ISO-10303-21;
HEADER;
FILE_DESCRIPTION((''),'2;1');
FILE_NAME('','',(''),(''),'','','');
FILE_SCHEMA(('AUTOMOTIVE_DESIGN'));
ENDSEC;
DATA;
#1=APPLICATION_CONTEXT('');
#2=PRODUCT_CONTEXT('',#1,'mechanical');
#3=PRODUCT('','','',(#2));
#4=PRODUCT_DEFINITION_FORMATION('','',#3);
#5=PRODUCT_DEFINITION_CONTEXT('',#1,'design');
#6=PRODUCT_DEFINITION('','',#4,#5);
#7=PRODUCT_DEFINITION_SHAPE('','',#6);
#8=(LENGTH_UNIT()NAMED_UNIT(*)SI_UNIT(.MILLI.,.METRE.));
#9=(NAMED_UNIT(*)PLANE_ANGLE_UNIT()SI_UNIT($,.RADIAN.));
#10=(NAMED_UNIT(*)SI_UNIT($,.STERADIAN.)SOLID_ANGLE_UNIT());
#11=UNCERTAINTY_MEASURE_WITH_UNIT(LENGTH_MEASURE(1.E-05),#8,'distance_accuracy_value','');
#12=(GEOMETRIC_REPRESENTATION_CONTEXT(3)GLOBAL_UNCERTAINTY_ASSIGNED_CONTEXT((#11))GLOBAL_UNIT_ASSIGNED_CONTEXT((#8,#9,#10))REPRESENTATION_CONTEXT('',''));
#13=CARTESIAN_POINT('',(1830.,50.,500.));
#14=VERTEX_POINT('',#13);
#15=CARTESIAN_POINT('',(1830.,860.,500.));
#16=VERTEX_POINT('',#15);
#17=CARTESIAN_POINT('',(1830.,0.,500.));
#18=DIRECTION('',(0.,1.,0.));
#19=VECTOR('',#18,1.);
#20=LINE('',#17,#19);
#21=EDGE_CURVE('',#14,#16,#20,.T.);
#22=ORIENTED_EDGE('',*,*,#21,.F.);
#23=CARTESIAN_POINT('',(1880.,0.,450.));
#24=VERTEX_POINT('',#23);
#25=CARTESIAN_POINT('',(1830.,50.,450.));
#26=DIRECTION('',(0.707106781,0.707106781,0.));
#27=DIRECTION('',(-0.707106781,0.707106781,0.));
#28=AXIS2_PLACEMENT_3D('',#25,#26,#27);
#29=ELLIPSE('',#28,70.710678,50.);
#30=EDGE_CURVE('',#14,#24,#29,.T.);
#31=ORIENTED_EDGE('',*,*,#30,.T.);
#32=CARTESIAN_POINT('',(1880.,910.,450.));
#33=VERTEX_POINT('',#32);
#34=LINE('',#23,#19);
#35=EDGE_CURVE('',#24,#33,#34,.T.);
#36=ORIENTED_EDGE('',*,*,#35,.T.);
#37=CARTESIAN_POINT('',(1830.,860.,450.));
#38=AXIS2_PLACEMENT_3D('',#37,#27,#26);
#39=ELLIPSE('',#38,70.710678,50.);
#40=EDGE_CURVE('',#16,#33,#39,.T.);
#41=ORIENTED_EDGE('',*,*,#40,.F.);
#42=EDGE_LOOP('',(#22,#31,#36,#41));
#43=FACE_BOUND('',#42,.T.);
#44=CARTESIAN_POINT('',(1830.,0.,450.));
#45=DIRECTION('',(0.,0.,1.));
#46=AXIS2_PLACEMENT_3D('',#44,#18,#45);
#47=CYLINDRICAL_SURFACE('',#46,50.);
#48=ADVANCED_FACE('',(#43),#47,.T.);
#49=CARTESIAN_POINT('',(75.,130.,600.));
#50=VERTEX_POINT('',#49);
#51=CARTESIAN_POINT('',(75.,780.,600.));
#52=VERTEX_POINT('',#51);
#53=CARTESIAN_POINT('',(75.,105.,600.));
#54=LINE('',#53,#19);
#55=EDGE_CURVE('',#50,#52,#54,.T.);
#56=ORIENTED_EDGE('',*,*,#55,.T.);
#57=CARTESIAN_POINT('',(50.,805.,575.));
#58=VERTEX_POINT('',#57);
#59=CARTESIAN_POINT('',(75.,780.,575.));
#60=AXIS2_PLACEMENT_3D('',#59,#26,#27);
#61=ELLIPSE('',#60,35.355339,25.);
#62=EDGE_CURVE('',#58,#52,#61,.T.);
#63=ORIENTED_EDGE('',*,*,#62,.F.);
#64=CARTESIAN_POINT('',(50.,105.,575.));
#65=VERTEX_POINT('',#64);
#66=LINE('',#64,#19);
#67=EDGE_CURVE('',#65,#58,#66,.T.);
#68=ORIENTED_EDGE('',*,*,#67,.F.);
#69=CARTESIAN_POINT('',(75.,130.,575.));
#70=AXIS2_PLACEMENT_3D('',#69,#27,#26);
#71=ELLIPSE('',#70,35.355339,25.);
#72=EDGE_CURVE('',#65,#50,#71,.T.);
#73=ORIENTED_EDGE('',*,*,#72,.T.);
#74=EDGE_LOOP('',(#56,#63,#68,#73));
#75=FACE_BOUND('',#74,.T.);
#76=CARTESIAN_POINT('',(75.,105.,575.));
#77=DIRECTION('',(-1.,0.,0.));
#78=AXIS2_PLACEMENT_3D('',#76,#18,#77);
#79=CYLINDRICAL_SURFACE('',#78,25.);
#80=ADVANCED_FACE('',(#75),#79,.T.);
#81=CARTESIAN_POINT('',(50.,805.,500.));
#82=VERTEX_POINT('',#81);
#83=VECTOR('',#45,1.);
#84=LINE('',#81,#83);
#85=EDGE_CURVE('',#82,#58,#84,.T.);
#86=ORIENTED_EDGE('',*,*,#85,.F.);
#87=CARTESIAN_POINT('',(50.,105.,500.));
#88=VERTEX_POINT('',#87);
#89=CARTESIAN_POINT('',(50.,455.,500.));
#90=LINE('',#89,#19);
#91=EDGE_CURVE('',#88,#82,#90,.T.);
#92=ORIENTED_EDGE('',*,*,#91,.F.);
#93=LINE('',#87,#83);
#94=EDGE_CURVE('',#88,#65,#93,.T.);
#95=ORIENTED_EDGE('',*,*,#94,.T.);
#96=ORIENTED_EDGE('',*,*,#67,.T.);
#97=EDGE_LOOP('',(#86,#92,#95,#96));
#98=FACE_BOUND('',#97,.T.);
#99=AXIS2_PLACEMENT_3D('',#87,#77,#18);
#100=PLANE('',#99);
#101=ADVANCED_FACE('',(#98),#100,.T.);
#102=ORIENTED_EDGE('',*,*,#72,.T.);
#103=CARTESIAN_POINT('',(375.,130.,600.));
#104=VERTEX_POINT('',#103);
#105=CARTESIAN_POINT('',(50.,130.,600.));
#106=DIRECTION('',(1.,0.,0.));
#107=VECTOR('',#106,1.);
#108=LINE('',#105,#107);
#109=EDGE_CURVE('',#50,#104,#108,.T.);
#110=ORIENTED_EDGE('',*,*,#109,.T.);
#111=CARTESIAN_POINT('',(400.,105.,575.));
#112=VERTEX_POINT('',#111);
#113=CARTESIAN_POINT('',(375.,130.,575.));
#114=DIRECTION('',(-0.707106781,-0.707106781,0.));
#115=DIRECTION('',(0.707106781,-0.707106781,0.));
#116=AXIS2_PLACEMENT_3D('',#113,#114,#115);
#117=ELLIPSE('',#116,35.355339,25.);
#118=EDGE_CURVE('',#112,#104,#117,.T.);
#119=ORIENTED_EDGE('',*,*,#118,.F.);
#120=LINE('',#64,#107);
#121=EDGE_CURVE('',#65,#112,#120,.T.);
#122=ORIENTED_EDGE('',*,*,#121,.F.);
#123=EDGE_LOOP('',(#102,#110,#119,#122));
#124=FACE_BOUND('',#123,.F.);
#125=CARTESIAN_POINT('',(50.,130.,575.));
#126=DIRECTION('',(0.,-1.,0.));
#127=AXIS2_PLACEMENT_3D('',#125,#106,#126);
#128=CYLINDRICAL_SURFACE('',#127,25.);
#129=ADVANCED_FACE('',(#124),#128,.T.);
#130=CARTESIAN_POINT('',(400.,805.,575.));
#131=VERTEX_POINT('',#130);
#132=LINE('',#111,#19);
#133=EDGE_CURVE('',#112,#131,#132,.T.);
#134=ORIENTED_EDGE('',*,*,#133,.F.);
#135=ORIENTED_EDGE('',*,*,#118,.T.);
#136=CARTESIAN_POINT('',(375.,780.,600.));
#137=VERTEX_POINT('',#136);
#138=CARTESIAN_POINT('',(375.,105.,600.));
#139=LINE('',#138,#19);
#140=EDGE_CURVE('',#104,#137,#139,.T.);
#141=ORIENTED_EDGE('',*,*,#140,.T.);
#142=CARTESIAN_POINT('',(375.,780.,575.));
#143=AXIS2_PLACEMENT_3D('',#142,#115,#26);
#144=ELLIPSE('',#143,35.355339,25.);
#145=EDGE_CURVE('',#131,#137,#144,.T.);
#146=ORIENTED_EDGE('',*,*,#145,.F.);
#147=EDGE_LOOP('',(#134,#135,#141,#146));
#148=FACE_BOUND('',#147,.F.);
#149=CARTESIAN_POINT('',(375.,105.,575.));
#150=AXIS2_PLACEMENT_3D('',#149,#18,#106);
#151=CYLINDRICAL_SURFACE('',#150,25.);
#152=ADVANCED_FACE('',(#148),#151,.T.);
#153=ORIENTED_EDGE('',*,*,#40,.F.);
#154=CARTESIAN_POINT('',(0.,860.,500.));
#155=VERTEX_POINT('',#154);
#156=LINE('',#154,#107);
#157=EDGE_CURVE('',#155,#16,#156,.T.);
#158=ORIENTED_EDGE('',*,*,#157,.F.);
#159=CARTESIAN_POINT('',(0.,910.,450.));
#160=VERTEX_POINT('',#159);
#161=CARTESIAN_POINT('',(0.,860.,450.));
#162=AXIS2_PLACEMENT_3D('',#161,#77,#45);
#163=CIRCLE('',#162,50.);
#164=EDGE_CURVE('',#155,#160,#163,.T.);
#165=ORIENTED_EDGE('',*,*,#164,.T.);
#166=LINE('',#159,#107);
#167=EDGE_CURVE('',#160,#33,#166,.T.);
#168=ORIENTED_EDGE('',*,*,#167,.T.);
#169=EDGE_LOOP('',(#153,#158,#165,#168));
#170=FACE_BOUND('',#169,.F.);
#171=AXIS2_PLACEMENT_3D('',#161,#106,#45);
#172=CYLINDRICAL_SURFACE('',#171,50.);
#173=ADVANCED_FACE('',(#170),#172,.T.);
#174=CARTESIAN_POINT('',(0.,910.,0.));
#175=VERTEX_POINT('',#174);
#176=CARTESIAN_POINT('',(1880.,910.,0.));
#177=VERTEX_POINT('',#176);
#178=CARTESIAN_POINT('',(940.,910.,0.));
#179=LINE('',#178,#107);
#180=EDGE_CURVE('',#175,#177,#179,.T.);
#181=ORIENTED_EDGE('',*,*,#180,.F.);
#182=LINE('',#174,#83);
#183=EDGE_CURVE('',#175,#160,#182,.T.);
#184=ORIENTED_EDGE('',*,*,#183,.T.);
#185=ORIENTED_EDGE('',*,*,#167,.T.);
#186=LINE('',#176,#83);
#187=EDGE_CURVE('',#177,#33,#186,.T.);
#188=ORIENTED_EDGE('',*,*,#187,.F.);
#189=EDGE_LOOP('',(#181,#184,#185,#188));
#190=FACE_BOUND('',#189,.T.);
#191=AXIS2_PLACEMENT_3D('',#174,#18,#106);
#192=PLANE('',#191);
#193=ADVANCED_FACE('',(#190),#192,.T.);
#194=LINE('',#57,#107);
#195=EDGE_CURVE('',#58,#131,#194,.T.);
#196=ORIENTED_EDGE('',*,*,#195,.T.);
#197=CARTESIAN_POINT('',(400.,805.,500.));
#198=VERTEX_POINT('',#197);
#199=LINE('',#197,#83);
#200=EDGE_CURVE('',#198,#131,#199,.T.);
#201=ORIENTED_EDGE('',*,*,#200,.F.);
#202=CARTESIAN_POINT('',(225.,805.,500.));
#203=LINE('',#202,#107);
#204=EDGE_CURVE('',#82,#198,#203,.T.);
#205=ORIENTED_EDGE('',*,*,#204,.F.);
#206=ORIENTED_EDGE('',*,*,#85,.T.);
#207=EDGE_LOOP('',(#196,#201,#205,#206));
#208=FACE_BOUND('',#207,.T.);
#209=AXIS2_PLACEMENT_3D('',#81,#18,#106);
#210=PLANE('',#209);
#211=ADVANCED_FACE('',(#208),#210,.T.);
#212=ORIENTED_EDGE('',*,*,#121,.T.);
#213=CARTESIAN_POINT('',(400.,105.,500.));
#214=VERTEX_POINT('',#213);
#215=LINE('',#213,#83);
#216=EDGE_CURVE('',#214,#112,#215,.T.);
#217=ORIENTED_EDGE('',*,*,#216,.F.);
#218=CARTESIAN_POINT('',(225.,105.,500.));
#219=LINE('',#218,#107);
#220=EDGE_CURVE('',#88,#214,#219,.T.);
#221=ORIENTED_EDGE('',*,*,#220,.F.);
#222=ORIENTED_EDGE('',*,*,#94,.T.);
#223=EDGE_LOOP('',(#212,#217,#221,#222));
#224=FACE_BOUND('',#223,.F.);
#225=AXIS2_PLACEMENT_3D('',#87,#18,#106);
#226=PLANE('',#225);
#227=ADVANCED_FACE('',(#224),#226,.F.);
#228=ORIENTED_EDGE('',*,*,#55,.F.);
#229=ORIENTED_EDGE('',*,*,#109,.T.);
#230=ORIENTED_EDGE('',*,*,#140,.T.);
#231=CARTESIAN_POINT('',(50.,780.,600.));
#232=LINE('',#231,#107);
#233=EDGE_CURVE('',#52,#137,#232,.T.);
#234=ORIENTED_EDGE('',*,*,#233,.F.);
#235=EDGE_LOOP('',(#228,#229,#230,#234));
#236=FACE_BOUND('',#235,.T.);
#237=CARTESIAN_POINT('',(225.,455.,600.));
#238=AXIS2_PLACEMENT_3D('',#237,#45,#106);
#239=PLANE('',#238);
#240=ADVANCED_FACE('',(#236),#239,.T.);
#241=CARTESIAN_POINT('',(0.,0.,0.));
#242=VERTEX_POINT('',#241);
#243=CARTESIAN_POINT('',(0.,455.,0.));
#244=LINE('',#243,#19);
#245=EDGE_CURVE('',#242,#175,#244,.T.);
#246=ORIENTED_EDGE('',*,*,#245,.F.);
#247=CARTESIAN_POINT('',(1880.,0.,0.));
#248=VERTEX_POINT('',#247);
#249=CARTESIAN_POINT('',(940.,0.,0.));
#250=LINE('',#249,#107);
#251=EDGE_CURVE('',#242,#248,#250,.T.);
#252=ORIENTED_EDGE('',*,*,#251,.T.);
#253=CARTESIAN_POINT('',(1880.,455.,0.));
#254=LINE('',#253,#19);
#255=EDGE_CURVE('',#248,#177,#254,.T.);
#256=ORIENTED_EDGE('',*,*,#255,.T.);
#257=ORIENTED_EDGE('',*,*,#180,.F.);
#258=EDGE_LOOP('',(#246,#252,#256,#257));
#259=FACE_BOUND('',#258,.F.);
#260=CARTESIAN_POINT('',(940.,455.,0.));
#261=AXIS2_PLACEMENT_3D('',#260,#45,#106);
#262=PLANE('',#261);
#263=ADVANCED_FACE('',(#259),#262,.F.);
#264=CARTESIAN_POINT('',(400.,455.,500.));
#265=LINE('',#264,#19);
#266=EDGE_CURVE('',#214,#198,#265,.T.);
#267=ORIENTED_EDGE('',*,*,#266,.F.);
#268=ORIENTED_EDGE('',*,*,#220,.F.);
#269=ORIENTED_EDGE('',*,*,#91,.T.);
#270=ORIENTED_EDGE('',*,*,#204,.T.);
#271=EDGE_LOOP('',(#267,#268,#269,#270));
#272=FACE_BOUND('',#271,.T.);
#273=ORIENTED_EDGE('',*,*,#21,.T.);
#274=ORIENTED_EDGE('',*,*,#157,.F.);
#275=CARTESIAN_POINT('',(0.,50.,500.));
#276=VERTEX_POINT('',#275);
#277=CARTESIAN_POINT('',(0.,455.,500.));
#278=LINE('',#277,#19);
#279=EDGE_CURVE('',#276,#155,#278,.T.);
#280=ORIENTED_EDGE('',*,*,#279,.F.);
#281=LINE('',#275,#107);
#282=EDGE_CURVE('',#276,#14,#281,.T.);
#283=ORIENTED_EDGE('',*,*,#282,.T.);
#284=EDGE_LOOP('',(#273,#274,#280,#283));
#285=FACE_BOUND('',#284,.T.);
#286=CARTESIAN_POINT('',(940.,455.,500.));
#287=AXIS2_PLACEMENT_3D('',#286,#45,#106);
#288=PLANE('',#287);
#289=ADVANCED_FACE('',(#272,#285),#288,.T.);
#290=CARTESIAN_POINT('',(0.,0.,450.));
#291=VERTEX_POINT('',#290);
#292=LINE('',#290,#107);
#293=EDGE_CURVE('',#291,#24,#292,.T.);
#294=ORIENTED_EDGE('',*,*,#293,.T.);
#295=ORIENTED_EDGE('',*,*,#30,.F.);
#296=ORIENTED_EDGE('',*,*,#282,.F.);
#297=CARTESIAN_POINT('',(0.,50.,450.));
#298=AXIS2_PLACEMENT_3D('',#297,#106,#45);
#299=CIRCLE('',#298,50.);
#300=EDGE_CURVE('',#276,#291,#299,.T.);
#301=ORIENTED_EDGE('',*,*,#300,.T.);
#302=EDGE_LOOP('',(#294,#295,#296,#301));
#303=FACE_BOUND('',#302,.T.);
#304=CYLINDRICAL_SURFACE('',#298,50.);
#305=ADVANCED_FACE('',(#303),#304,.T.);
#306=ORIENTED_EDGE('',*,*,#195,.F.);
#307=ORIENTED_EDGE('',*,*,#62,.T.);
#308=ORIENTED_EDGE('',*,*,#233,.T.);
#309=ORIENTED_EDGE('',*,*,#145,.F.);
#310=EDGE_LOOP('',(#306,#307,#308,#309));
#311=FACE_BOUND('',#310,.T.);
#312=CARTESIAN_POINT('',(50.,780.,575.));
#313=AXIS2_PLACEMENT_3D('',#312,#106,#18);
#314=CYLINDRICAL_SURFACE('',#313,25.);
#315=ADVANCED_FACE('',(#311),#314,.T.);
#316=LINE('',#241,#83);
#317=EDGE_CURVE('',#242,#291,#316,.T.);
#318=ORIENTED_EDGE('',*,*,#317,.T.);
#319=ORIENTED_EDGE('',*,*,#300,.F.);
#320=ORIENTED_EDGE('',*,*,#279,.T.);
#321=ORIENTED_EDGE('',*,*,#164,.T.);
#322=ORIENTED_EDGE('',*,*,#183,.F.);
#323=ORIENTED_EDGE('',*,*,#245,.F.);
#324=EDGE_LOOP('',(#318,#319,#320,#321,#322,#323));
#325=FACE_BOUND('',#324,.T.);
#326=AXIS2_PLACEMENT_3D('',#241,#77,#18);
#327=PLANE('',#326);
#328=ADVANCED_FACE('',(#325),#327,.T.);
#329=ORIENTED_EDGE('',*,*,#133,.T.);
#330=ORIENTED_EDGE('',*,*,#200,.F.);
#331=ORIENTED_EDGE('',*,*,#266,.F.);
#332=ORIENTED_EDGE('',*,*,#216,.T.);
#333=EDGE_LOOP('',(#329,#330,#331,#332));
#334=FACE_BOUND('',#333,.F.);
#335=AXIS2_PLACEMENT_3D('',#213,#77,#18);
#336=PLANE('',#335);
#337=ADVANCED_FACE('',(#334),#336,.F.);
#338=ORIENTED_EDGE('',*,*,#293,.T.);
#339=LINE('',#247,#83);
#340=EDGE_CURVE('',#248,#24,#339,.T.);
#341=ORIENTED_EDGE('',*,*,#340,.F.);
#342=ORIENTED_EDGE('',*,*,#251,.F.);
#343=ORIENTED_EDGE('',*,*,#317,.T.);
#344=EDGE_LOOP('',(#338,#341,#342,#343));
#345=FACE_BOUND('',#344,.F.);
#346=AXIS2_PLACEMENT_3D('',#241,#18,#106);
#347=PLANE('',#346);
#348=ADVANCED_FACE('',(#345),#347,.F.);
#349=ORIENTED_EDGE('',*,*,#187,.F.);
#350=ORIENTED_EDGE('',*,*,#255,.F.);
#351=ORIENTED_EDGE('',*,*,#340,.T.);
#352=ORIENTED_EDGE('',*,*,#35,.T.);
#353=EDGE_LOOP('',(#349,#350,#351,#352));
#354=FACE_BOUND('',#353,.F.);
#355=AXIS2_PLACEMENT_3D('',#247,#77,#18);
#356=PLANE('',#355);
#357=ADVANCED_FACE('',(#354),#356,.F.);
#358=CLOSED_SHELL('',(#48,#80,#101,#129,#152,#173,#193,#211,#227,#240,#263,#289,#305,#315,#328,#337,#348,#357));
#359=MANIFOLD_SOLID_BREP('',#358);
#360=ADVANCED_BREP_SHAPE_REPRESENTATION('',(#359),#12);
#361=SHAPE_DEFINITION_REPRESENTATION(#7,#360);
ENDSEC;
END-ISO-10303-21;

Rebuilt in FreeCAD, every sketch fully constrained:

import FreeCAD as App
import Part
import Sketcher
Q = App.Units.Quantity


def edges_at(feature, points):
    """Names of the edges that pass closest to the given points."""
    edges = feature.Shape.Edges
    near = lambda p: min(range(len(edges)), key=lambda i: edges[i].distToShape(Part.Vertex(*p))[0])
    return sorted({f"Edge{near(p) + 1}" for p in points})


def add_polygon(sketch, points):
    """Adds a closed chain of lines whose ends are joined by coincident constraints."""
    first, n = sketch.GeometryCount, len(points)
    for a, b in zip(points, points[1:] + points[:1]):
        sketch.addGeometry(Part.LineSegment(App.Vector(*a, 0), App.Vector(*b, 0)), False)
    for i in range(n):
        sketch.addConstraint(Sketcher.Constraint("Coincident", first + i, 2, first + (i + 1) % n, 1))

doc = App.newDocument("Part")
body = doc.addObject("PartDesign::Body", "Body")

sketch1 = doc.addObject("Sketcher::SketchObject", "Sketch")
body.addObject(sketch1)
sketch1.AttachmentSupport = (doc.XY_Plane, [""])
sketch1.MapMode = "FlatFace"
add_polygon(sketch1, [(0, 910), (0, 0), (1880, 0), (1880, 910)])
sketch1.addConstraint([
    Sketcher.Constraint("Vertical", 0),
    Sketcher.Constraint("Horizontal", 1),
    Sketcher.Constraint("Vertical", 2),
    Sketcher.Constraint("Horizontal", 3),
    Sketcher.Constraint("Coincident", 0, 2, -1, 1),
    Sketcher.Constraint("DistanceX", 1, 1, 1, 2, Q("1880 mm")),
    Sketcher.Constraint("DistanceY", 0, 2, 0, 1, Q("910 mm")),
])
pad1 = doc.addObject("PartDesign::Pad", "Pad")
body.addObject(pad1)
pad1.Profile = sketch1
pad1.Length = 500

sketch2 = doc.addObject("Sketcher::SketchObject", "Sketch001")
body.addObject(sketch2)
sketch2.AttachmentSupport = (doc.XY_Plane, [""])
sketch2.MapMode = "FlatFace"
sketch2.AttachmentOffset = App.Placement(App.Vector(0, 0, 500), App.Rotation())
add_polygon(sketch2, [(50, 805), (50, 105), (400, 105), (400, 805)])
sketch2.addConstraint([
    Sketcher.Constraint("Vertical", 0),
    Sketcher.Constraint("Horizontal", 1),
    Sketcher.Constraint("Vertical", 2),
    Sketcher.Constraint("Horizontal", 3),
    Sketcher.Constraint("DistanceX", 1, 1, 1, 2, Q("350 mm")),
    Sketcher.Constraint("DistanceY", 0, 2, 0, 1, Q("700 mm")),
    Sketcher.Constraint("DistanceX", -1, 1, 0, 2, Q("50 mm")),
    Sketcher.Constraint("DistanceY", -1, 1, 0, 2, Q("105 mm")),
])
pad2 = doc.addObject("PartDesign::Pad", "Pad001")
body.addObject(pad2)
pad2.Profile = sketch2
pad2.Length = 100
doc.recompute()

fillet = doc.addObject("PartDesign::Fillet", "Fillet")
body.addObject(fillet)
fillet.Base = (pad2, edges_at(pad2, [
    (50, 455, 600),
    (225, 105, 600),
    (400, 455, 600),
    (225, 805, 600),
]))
fillet.Radius = 25
doc.recompute()

fillet2 = doc.addObject("PartDesign::Fillet", "Fillet001")
body.addObject(fillet2)
fillet2.Base = (fillet, edges_at(fillet, [(940, 910, 500), (1880, 455, 500), (940, 0, 500)]))
fillet2.Radius = 50

doc.recompute()
